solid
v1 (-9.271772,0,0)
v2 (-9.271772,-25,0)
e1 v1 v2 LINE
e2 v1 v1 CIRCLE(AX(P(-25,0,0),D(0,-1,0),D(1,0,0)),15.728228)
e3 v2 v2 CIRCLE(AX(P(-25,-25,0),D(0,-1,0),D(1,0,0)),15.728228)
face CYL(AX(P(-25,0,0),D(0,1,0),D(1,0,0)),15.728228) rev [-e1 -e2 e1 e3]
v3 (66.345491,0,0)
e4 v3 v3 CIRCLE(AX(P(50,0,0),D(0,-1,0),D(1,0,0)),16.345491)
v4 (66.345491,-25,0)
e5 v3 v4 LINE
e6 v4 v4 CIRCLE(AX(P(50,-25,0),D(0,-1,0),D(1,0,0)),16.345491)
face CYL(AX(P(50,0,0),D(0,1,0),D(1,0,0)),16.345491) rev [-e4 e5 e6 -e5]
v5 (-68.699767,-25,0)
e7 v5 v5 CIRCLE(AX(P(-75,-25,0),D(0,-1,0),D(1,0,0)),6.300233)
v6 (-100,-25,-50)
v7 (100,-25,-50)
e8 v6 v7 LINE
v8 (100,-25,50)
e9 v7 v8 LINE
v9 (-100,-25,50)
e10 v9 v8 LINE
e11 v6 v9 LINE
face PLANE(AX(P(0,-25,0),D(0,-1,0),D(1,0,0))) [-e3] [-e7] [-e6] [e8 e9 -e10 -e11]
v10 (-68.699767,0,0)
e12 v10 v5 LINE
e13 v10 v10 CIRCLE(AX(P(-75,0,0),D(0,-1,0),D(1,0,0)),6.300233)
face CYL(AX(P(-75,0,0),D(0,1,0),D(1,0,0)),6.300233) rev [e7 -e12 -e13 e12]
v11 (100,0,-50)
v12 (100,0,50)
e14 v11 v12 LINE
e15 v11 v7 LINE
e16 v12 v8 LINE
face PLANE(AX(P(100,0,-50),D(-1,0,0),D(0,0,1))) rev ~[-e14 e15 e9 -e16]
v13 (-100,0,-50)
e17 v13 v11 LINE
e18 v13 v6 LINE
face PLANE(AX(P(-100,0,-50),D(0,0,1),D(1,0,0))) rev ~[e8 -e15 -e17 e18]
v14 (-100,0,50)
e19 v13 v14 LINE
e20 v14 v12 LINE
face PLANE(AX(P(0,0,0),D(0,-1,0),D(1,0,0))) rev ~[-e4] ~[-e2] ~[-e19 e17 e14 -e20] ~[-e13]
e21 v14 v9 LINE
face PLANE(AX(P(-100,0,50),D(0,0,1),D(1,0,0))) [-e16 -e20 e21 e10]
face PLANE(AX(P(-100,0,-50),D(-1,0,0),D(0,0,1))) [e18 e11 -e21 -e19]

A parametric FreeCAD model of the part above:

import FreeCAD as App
import Part
import Sketcher

V = App.Vector
Q = App.Units.Quantity


def add_polygon(sketch, points):
    """Adds a closed chain of lines whose ends are joined by coincident constraints."""
    first, n = sketch.GeometryCount, len(points)
    for a, b in zip(points, points[1:] + points[:1]):
        sketch.addGeometry(Part.LineSegment(App.Vector(*a, 0), App.Vector(*b, 0)), False)
    for i in range(n):
        sketch.addConstraint(Sketcher.Constraint("Coincident", first + i, 2, first + (i + 1) % n, 1))

doc = App.newDocument("Part")
body = doc.addObject("PartDesign::Body", "Body")

sketch1 = body.newObject("Sketcher::SketchObject", "Sketch")
sketch1.AttachmentSupport = (doc.getObject("XZ_Plane"), [""])
sketch1.MapMode = "FlatFace"
add_polygon(sketch1, [(-100, 50), (-100, -50), (100, -50), (100, 50)])
sketch1.addGeometry(Part.Circle(V(-75, 0, 0), V(0, 0, 1), 6), False)
sketch1.addGeometry(Part.Circle(V(-25, 0, 0), V(0, 0, 1), 16), False)
sketch1.addGeometry(Part.Circle(V(50, 0, 0), V(0, 0, 1), 16), False)
sketch1.addConstraint([
    Sketcher.Constraint("Vertical", 0),
    Sketcher.Constraint("Horizontal", 1),
    Sketcher.Constraint("Vertical", 2),
    Sketcher.Constraint("Horizontal", 3),
    Sketcher.Constraint("Symmetric", 0, 2, 2, 2, -1, 1),
    Sketcher.Constraint("PointOnObject", 4, 3, -1),
    Sketcher.Constraint("PointOnObject", 5, 3, -1),
    Sketcher.Constraint("PointOnObject", 6, 3, -1),
    Sketcher.Constraint("DistanceX", 1, 1, 1, 2, Q("200 mm")),
    Sketcher.Constraint("DistanceY", 0, 2, 0, 1, Q("100 mm")),
    Sketcher.Constraint("DistanceX", 4, 3, -1, 1, Q("75 mm")),
    Sketcher.Constraint("DistanceX", 5, 3, -1, 1, Q("25 mm")),
    Sketcher.Constraint("DistanceX", -1, 1, 6, 3, Q("50 mm")),
    Sketcher.Constraint("Diameter", 6, Q("32.690982 mm")),
    Sketcher.Constraint("Diameter", 4, Q("12.600466 mm")),
    Sketcher.Constraint("Diameter", 5, Q("31.456456 mm")),
])
pad1 = body.newObject("PartDesign::Pad", "Pad")
pad1.Profile = sketch1
pad1.Length = 25

doc.recompute()
